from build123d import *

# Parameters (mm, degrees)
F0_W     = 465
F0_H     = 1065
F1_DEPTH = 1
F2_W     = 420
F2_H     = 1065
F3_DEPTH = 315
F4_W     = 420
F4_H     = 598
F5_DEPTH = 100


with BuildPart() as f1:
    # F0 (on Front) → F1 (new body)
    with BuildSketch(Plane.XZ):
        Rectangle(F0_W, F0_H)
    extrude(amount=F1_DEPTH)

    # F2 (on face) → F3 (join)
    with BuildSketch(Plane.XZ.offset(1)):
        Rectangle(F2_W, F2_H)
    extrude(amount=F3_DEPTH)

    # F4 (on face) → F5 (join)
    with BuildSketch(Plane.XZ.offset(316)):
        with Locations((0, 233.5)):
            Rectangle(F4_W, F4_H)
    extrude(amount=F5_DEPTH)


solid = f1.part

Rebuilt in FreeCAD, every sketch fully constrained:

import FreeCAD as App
import Part
import Sketcher
from FreeCAD import Vector


def add_polygon(sketch, points):
    """Adds a closed chain of lines whose ends are joined by coincident constraints."""
    first, n = sketch.GeometryCount, len(points)
    for a, b in zip(points, points[1:] + points[:1]):
        sketch.addGeometry(Part.LineSegment(App.Vector(*a, 0), App.Vector(*b, 0)), False)
    for i in range(n):
        sketch.addConstraint(Sketcher.Constraint("Coincident", first + i, 2, first + (i + 1) % n, 1))

doc = App.newDocument("Part")
params = doc.addObject("Spreadsheet::Sheet", "Params")
for row, (alias, value) in enumerate([
    ("sketch1_width", "465 mm"),
    ("sketch1_height", "1065 mm"),
    ("pad1_length", "1 mm"),
    ("sketch2_width", "420 mm"),
    ("sketch2_height", "1065 mm"),
    ("pad2_length", "315 mm"),
    ("sketch3_width", "420 mm"),
    ("sketch3_height", "598 mm"),
    ("pad3_length", "100 mm"),
], start=1):
    params.set(f"A{row}", alias)
    params.set(f"B{row}", "=" + value)
    params.setAlias(f"B{row}", alias)

body = doc.addObject("PartDesign::Body", "Body")

# Sketch on XZ plane
sketch1 = body.newObject("Sketcher::SketchObject", "Sketch")
sketch1.AttachmentSupport = (doc.getObject("XZ_Plane"), [""])
sketch1.MapMode = "FlatFace"
add_polygon(sketch1, [(-232, 532), (-232, -532), (232, -532), (232, 532)])  # lines 0-3
sketch1.addConstraint([
    Sketcher.Constraint("Vertical", 0),
    Sketcher.Constraint("Horizontal", 1),
    Sketcher.Constraint("Vertical", 2),
    Sketcher.Constraint("Horizontal", 3),
    Sketcher.Constraint("Symmetric", 0, 2, 2, 2, -1, 1),
    Sketcher.Constraint("DistanceX", 1, 1, 1, 2, 465.0),
    Sketcher.Constraint("DistanceY", 0, 2, 0, 1, 1065.0),
])
sketch1.setExpression("Constraints[9]", "Params.sketch1_width")
sketch1.setExpression("Constraints[10]", "Params.sketch1_height")
pad1 = body.newObject("PartDesign::Pad", "Pad")
pad1.Profile = sketch1
pad1.setExpression("Length", "Params.pad1_length")

# Sketch on XZ plane
sketch2 = body.newObject("Sketcher::SketchObject", "Sketch001")
sketch2.AttachmentSupport = (doc.getObject("XZ_Plane"), [""])
sketch2.MapMode = "FlatFace"
sketch2.AttachmentOffset = App.Placement(Vector(0, 0, 1), App.Rotation())
add_polygon(sketch2, [(-210, 532), (-210, -532), (210, -532), (210, 532)])  # lines 0-3
sketch2.addConstraint([
    Sketcher.Constraint("Vertical", 0),
    Sketcher.Constraint("Horizontal", 1),
    Sketcher.Constraint("Vertical", 2),
    Sketcher.Constraint("Horizontal", 3),
    Sketcher.Constraint("Symmetric", 0, 2, 2, 2, -1, 1),
    Sketcher.Constraint("DistanceX", 1, 1, 1, 2, 420.0),
    Sketcher.Constraint("DistanceY", 0, 2, 0, 1, 1065.0),
])
sketch2.setExpression("Constraints[9]", "Params.sketch2_width")
sketch2.setExpression("Constraints[10]", "Params.sketch2_height")
pad2 = body.newObject("PartDesign::Pad", "Pad001")
pad2.Profile = sketch2
pad2.setExpression("Length", "Params.pad2_length")

# Sketch on XZ plane
sketch3 = body.newObject("Sketcher::SketchObject", "Sketch002")
sketch3.AttachmentSupport = (doc.getObject("XZ_Plane"), [""])
sketch3.MapMode = "FlatFace"
sketch3.AttachmentOffset = App.Placement(Vector(0, 0, 316), App.Rotation())
add_polygon(sketch3, [(-210, 532), (-210, -66), (210, -66), (210, 532)])  # lines 0-3
sketch3.addConstraint([
    Sketcher.Constraint("Vertical", 0),
    Sketcher.Constraint("Horizontal", 1),
    Sketcher.Constraint("Vertical", 2),
    Sketcher.Constraint("Horizontal", 3),
    Sketcher.Constraint("DistanceX", 1, 1, 1, 2, 420.0),
    Sketcher.Constraint("DistanceY", 0, 2, 0, 1, 598.0),
    Sketcher.Constraint("DistanceX", 0, 2, -1, 1, 210.0),
    Sketcher.Constraint("DistanceY", 0, 2, -1, 1, 65.5),
])
sketch3.setExpression("Constraints[8]", "Params.sketch3_width")
sketch3.setExpression("Constraints[9]", "Params.sketch3_height")
pad3 = body.newObject("PartDesign::Pad", "Pad002")
pad3.Profile = sketch3
pad3.setExpression("Length", "Params.pad3_length")

doc.recompute()
